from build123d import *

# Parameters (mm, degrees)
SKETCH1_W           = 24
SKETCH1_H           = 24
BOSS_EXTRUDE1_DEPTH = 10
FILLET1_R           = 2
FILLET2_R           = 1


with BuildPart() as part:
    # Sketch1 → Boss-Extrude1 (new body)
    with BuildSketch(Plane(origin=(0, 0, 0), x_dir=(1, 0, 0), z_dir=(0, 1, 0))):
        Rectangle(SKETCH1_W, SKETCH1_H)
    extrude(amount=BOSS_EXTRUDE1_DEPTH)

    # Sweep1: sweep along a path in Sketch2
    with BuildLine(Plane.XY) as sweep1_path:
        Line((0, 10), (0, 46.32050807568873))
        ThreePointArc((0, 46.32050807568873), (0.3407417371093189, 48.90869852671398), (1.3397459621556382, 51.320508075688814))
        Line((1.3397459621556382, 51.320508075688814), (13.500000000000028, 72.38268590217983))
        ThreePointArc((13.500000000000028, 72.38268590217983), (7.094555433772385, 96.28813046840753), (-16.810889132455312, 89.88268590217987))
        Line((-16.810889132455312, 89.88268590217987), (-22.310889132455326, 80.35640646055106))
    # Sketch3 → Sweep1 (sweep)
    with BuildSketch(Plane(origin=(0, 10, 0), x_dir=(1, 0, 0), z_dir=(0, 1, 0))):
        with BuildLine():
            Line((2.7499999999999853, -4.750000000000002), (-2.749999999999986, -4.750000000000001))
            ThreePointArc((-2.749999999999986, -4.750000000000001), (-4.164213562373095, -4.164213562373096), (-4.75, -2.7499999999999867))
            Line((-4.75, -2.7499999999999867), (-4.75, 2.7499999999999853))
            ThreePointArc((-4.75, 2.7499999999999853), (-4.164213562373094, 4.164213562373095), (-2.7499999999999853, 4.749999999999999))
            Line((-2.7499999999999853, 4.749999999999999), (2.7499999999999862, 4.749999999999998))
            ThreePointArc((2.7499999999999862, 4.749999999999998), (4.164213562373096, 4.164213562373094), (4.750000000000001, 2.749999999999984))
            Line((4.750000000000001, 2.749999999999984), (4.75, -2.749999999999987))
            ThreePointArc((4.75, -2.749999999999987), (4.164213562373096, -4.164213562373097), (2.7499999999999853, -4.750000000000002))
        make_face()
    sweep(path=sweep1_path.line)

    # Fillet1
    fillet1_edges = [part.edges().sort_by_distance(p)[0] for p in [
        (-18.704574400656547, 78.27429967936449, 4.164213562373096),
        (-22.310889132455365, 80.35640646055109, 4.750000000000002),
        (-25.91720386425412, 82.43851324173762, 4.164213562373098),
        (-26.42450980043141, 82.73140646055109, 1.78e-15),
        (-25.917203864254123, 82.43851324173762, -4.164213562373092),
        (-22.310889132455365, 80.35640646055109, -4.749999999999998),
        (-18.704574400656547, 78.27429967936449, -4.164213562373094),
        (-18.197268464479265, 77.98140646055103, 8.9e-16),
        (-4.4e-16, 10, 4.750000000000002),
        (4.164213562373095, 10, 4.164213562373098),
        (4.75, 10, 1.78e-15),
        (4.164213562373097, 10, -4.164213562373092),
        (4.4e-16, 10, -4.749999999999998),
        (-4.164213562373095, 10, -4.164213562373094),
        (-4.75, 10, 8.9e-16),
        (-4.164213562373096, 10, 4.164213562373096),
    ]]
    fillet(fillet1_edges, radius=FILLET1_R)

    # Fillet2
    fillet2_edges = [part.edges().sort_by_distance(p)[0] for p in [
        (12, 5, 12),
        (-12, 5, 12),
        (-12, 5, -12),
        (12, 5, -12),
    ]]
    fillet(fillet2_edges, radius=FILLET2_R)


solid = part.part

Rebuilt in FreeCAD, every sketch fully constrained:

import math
import FreeCAD as App
import Part
import Sketcher

V = App.Vector
Q = App.Units.Quantity


def edges_at(feature, points):
    """Names of the edges that pass closest to the given points."""
    edges = feature.Shape.Edges
    near = lambda p: min(range(len(edges)), key=lambda i: edges[i].distToShape(Part.Vertex(*p))[0])
    return sorted({f"Edge{near(p) + 1}" for p in points})

doc = App.newDocument("Part")
body = doc.addObject("PartDesign::Body", "Body")

# Sketch on XZ plane
sketch1 = body.newObject("Sketcher::SketchObject", "Sketch")
sketch1.AttachmentSupport = (doc.getObject("XZ_Plane"), [""])
sketch1.MapMode = "FlatFace"
sketch1.addGeometry([
    Part.LineSegment(V(-12, -12, 0), V(-12, 12, 0)),
    Part.LineSegment(V(-12, 12, 0), V(12, 12, 0)),
    Part.LineSegment(V(12, 12, 0), V(12, -12, 0)),
    Part.LineSegment(V(12, -12, 0), V(-12, -12, 0)),
], False)
sketch1.addConstraint([
    Sketcher.Constraint("Coincident", 0, 2, 1, 1),
    Sketcher.Constraint("Coincident", 1, 2, 2, 1),
    Sketcher.Constraint("Coincident", 2, 2, 3, 1),
    Sketcher.Constraint("Coincident", 3, 2, 0, 1),
    Sketcher.Constraint("Vertical", 0),
    Sketcher.Constraint("Horizontal", 1),
    Sketcher.Constraint("Vertical", 2),
    Sketcher.Constraint("Horizontal", 3),
    Sketcher.Constraint("Symmetric", 0, 2, 2, 2, -1, 1),
    Sketcher.Constraint("Equal", 3, 0),
    Sketcher.Constraint("DistanceX", 1, 1, 1, 2, 24.0),
])
pad1 = body.newObject("PartDesign::Pad", "Pad")
pad1.Profile = sketch1
pad1.Length = 10
pad1.Reversed = True

# Sketch on XZ plane
sketch2 = body.newObject("Sketcher::SketchObject", "Sketch001")
sketch2.AttachmentSupport = (doc.getObject("XZ_Plane"), [""])
sketch2.MapMode = "FlatFace"
sketch2.AttachmentOffset = App.Placement(V(0, 0, -10), App.Rotation())
sketch2.addGeometry([
    Part.LineSegment(V(-2.75, 4.75, 0), V(2.75, 4.75, 0)),  # 0
    Part.ArcOfCircle(Part.Circle(V(2.75, 2.75, 0), V(0, 0, 1), 2), math.radians(0), math.radians(90)),  # 1
    Part.LineSegment(V(4.75, 2.75, 0), V(4.75, -2.75, 0)),  # 2
    Part.ArcOfCircle(Part.Circle(V(2.75, -2.75, 0), V(0, 0, 1), 2), math.radians(-90), math.radians(0)),  # 3
    Part.LineSegment(V(2.75, -4.75, 0), V(-2.75, -4.75, 0)),  # 4
    Part.ArcOfCircle(Part.Circle(V(-2.75, -2.75, 0), V(0, 0, 1), 2), math.radians(180), math.radians(270)),  # 5
    Part.LineSegment(V(-4.75, -2.75, 0), V(-4.75, 2.75, 0)),  # 6
    Part.ArcOfCircle(Part.Circle(V(-2.75, 2.75, 0), V(0, 0, 1), 2), math.radians(90), math.radians(180)),  # 7
], False)
sketch2.addConstraint([
    Sketcher.Constraint("Tangent", 0, 2, 1, 2),
    Sketcher.Constraint("Tangent", 1, 1, 2, 1),
    Sketcher.Constraint("Tangent", 2, 2, 3, 2),
    Sketcher.Constraint("Tangent", 3, 1, 4, 1),
    Sketcher.Constraint("Tangent", 4, 2, 5, 2),
    Sketcher.Constraint("Tangent", 5, 1, 6, 1),
    Sketcher.Constraint("Tangent", 6, 2, 7, 2),
    Sketcher.Constraint("Tangent", 7, 1, 0, 1),
    Sketcher.Constraint("Horizontal", 0),
    Sketcher.Constraint("Vertical", 2),
    Sketcher.Constraint("Horizontal", 4),
    Sketcher.Constraint("Vertical", 6),
    Sketcher.Constraint("Equal", 1, 3),
    Sketcher.Constraint("Equal", 3, 5),
    Sketcher.Constraint("Equal", 5, 7),
    Sketcher.Constraint("Symmetric", 1, 3, 5, 3, -1, 1),
    Sketcher.Constraint("Equal", 4, 2),
    Sketcher.Constraint("Radius", 1, 2.0),
    Sketcher.Constraint("DistanceX", 0, 1, 0, 2, 5.5),
])

# Sketch on XY plane
sketch3 = body.newObject("Sketcher::SketchObject", "Sketch002")
sketch3.AttachmentSupport = (doc.getObject("XY_Plane"), [""])
sketch3.MapMode = "FlatFace"
sketch3.addGeometry([
    Part.LineSegment(V(0, 10, 0), V(0, 46.320508, 0)),  # 0
    Part.ArcOfCircle(Part.Circle(V(10, 46.320508, 0), V(0, 0, 1), 10), math.radians(150), math.radians(180)),  # 1
    Part.LineSegment(V(1.339746, 51.320508, 0), V(13.5, 72.382686, 0)),  # 2
    Part.ArcOfCircle(Part.Circle(V(-1.655445, 81.132686, 0), V(0, 0, 1), 17.5), math.radians(-30), math.radians(150)),  # 3
    Part.LineSegment(V(-16.810889, 89.882686, 0), V(-22.310889, 80.356406, 0)),  # 4
], False)
sketch3.addConstraint([
    Sketcher.Constraint("Tangent", 0, 2, 1, 2),
    Sketcher.Constraint("Tangent", 1, 1, 2, 1),
    Sketcher.Constraint("Tangent", 2, 2, 3, 1),
    Sketcher.Constraint("Tangent", 3, 2, 4, 1),
    Sketcher.Constraint("Vertical", 0),
    Sketcher.Constraint("PointOnObject", 0, 1, -2),
    Sketcher.Constraint("Parallel", 2, 4),
    Sketcher.Constraint("Radius", 1, 10.0),
    Sketcher.Constraint("Radius", 3, 17.5),
    Sketcher.Constraint("Angle", 2, Q("60 deg")),
    Sketcher.Constraint("Distance", 4, 11.0),
    Sketcher.Constraint("DistanceY", -1, 1, 0, 1, 10.0),
    Sketcher.Constraint("DistanceX", -1, 1, 2, 2, 13.5),
    Sketcher.Constraint("DistanceY", 0, 1, 0, 2, 36.320508),
])
doc.recompute()

additivepipe = body.newObject("PartDesign::AdditivePipe", "AdditivePipe")
additivepipe.Profile = sketch2
additivepipe.Spine = (sketch3, ["Edge1", "Edge2", "Edge3", "Edge4", "Edge5"])
doc.recompute()

fillet = body.newObject("PartDesign::Fillet", "Fillet")
fillet.Base = (additivepipe, edges_at(additivepipe, [
    (-18.705, 78.274, 4.164),
    (-22.311, 80.356, 4.75),
    (-25.917, 82.439, 4.164),
    (-26.425, 82.731, 0),
    (-25.917, 82.439, -4.164),
    (-22.311, 80.356, -4.75),
    (-18.705, 78.274, -4.164),
    (-18.197, 77.981, 0),
    (0, 10, 4.75),
    (4.164, 10, 4.164),
    (4.75, 10, 0),
    (4.164, 10, -4.164),
    (0, 10, -4.75),
    (-4.164, 10, -4.164),
    (-4.75, 10, 0),
    (-4.164, 10, 4.164),
]))
fillet.Radius = 2
doc.recompute()

fillet2 = body.newObject("PartDesign::Fillet", "Fillet001")
fillet2.Base = (fillet, edges_at(fillet, [
    (12, 5, 12),
    (-12, 5, 12),
    (-12, 5, -12),
    (12, 5, -12),
]))
fillet2.Radius = 1

doc.recompute()
